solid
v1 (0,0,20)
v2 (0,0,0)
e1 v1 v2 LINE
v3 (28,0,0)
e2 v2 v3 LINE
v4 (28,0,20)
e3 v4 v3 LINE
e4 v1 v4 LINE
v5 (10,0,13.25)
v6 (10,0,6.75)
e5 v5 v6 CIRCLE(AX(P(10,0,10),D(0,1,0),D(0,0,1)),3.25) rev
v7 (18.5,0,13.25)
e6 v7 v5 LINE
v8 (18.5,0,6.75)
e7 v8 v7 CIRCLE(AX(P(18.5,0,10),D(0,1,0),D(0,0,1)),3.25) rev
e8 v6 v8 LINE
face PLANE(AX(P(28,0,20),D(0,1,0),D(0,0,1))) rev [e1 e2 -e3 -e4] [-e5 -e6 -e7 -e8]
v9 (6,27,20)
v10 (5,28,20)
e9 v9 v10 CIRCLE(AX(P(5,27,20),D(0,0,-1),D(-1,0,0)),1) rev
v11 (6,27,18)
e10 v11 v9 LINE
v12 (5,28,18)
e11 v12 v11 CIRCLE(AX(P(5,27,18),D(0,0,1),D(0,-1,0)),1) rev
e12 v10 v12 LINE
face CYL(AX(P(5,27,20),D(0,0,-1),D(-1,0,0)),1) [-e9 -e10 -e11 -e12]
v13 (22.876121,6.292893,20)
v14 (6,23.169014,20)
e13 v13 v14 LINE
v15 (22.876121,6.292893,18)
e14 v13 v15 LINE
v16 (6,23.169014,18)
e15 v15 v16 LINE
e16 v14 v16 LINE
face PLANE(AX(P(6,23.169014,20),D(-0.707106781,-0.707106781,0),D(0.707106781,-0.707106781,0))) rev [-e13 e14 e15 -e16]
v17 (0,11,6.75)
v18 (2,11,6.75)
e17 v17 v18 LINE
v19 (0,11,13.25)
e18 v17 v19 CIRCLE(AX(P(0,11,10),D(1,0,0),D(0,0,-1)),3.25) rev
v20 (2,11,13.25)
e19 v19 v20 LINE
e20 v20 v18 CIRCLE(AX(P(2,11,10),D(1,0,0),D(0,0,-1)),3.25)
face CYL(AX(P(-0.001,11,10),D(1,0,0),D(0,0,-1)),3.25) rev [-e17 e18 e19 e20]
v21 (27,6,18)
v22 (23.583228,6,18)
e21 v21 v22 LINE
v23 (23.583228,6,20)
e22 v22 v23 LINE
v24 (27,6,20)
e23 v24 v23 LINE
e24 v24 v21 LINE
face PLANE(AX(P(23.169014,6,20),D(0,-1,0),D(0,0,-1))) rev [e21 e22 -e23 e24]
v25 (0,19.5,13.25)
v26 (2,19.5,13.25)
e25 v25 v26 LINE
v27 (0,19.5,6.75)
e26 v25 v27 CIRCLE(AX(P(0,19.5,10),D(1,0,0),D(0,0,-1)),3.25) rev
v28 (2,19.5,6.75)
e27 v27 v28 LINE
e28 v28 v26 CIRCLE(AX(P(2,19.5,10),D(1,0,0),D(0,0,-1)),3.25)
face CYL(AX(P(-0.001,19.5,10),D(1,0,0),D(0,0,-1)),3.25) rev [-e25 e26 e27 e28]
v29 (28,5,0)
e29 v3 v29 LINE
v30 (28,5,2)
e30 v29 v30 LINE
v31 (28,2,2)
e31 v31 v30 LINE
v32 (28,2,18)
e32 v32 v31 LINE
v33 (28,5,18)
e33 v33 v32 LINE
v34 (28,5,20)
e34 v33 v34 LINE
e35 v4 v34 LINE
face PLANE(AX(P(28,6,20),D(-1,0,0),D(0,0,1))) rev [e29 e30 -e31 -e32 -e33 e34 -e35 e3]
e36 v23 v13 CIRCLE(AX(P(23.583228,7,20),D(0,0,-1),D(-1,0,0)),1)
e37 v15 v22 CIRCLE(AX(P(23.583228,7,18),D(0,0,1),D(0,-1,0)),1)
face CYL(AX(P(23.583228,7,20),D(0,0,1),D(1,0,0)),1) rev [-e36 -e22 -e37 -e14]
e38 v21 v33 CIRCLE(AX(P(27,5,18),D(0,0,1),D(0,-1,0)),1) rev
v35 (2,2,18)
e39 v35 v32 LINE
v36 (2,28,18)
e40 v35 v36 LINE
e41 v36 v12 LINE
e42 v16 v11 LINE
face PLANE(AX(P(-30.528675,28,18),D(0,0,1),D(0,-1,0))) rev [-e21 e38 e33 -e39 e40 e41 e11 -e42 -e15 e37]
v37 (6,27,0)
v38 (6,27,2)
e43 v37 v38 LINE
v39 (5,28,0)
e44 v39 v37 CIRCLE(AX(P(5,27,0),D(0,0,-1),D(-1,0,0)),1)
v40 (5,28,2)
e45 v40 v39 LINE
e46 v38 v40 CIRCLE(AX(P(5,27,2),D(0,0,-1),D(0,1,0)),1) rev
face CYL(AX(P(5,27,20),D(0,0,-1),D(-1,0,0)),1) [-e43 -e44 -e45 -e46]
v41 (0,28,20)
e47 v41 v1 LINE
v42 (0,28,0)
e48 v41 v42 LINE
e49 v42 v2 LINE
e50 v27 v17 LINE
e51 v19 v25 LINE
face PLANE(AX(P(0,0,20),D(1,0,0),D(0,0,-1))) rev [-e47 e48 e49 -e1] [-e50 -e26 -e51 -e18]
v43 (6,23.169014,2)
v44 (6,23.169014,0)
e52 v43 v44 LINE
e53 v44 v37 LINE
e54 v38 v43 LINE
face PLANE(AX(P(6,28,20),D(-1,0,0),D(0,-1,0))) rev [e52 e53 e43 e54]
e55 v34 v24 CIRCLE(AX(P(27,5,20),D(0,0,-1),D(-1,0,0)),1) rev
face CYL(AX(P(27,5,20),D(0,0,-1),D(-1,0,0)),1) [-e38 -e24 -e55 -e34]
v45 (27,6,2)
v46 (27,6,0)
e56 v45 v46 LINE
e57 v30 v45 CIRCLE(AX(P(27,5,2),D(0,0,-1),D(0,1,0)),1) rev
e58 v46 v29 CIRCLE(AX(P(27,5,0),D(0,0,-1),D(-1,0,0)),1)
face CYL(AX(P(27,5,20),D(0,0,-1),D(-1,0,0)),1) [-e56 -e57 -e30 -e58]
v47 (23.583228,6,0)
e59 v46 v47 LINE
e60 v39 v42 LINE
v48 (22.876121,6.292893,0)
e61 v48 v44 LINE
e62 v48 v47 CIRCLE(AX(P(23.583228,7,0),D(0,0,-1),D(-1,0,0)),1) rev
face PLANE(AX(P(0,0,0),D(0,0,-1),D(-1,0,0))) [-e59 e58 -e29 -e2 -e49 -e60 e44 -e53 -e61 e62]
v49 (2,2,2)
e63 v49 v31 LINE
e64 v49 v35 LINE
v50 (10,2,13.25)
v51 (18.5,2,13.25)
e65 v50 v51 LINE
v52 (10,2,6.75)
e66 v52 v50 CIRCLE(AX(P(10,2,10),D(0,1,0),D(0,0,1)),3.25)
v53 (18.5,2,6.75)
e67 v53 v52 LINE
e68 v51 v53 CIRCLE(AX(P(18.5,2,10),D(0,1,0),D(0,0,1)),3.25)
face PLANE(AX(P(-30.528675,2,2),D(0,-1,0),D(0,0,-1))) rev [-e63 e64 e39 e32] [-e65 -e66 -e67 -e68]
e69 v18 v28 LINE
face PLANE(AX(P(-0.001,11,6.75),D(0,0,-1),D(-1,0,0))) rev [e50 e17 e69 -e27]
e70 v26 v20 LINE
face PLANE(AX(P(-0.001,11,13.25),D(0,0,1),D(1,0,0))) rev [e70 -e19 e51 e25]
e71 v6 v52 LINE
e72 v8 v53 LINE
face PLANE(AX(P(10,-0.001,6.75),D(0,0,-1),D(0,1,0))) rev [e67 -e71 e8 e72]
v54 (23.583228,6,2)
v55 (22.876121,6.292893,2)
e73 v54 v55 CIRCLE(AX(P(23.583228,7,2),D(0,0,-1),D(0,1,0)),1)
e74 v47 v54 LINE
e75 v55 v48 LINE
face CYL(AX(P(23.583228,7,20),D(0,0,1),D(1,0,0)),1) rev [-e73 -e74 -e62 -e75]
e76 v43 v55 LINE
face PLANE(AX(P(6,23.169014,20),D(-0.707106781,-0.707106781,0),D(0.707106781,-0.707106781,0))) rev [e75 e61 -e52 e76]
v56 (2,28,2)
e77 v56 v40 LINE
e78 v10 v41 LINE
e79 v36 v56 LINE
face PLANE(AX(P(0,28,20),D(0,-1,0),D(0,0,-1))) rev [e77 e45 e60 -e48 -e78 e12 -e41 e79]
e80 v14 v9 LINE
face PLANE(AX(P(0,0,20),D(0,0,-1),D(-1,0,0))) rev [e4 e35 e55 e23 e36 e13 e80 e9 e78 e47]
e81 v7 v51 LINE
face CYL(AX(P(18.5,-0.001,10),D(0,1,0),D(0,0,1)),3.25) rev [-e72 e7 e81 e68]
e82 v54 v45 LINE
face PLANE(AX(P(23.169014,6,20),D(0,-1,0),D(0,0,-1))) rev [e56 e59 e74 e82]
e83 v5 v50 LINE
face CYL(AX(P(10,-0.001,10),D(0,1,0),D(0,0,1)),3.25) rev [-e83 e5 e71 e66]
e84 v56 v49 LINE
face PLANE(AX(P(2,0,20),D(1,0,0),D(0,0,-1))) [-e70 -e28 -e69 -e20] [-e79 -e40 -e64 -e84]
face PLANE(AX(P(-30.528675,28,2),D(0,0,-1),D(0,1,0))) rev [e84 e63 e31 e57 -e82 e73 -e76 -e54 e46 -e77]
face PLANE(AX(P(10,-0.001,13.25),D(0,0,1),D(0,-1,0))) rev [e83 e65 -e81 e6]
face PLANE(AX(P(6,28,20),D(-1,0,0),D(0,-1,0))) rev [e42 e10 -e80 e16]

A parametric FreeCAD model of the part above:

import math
import FreeCAD as App
import Part
import Sketcher

V = App.Vector
Q = App.Units.Quantity


def edges_at(feature, points):
    """Names of the edges that pass closest to the given points."""
    edges = feature.Shape.Edges
    near = lambda p: min(range(len(edges)), key=lambda i: edges[i].distToShape(Part.Vertex(*p))[0])
    return sorted({f"Edge{near(p) + 1}" for p in points})


def add_polygon(sketch, points):
    """Adds a closed chain of lines whose ends are joined by coincident constraints."""
    first, n = sketch.GeometryCount, len(points)
    for a, b in zip(points, points[1:] + points[:1]):
        sketch.addGeometry(Part.LineSegment(App.Vector(*a, 0), App.Vector(*b, 0)), False)
    for i in range(n):
        sketch.addConstraint(Sketcher.Constraint("Coincident", first + i, 2, first + (i + 1) % n, 1))

doc = App.newDocument("Part")
body = doc.addObject("PartDesign::Body", "Body")

# Sketch on XY plane
sketch1 = doc.addObject("Sketcher::SketchObject", "Sketch")
body.addObject(sketch1)
sketch1.AttachmentSupport = (doc.XY_Plane, [""])
sketch1.MapMode = "FlatFace"
add_polygon(sketch1, [(0, 28), (0, 0), (28, 0), (28, 6), (23.169014, 6), (6, 23.169014), (6, 28)])  # lines 0-6
sketch1.addConstraint([
    Sketcher.Constraint("Vertical", 0),
    Sketcher.Constraint("Horizontal", 1),
    Sketcher.Constraint("Vertical", 2),
    Sketcher.Constraint("Horizontal", 3),
    Sketcher.Constraint("Vertical", 5),
    Sketcher.Constraint("Horizontal", 6),
    Sketcher.Constraint("Coincident", 0, 2, -1, 1),
    Sketcher.Constraint("Equal", 1, 0),
    Sketcher.Constraint("Equal", 6, 2),
    Sketcher.Constraint("Equal", 3, 5),
    Sketcher.Constraint("DistanceX", 1, 1, 1, 2, Q("28 mm")),
    Sketcher.Constraint("DistanceX", 6, 2, 6, 1, Q("6 mm")),
    Sketcher.Constraint("DistanceX", 3, 2, 3, 1, Q("4.830986 mm")),
])
pad1 = doc.addObject("PartDesign::Pad", "Pad")
body.addObject(pad1)
pad1.Profile = sketch1
pad1.Length = 20

# Sketch on YZ plane
sketch2 = doc.addObject("Sketcher::SketchObject", "Sketch001")
body.addObject(sketch2)
sketch2.AttachmentSupport = (doc.YZ_Plane, [""])
sketch2.MapMode = "FlatFace"
sketch2.AttachmentOffset = App.Placement(V(0, 0, 28), App.Rotation())
add_polygon(sketch2, [(28, 18), (2, 18), (2, 2), (28, 2)])  # lines 0-3
sketch2.addConstraint([
    Sketcher.Constraint("Horizontal", 0),
    Sketcher.Constraint("Vertical", 1),
    Sketcher.Constraint("Horizontal", 2),
    Sketcher.Constraint("Vertical", 3),
    Sketcher.Constraint("DistanceX", 0, 2, 0, 1, Q("26 mm")),
    Sketcher.Constraint("DistanceY", 1, 2, 1, 1, Q("16 mm")),
    Sketcher.Constraint("DistanceX", -1, 1, 0, 2, Q("2 mm")),
    Sketcher.Constraint("DistanceY", -1, 1, 0, 2, Q("18 mm")),
])
pocket1 = doc.addObject("PartDesign::Pocket", "Pocket")
body.addObject(pocket1)
pocket1.Profile = sketch2
pocket1.Length = 26

# Sketch on YZ plane
sketch3 = doc.addObject("Sketcher::SketchObject", "Sketch002")
body.addObject(sketch3)
sketch3.AttachmentSupport = (doc.YZ_Plane, [""])
sketch3.MapMode = "FlatFace"
sketch3.AttachmentOffset = App.Placement(V(0, 0, 2), App.Rotation())
sketch3.addGeometry([
    Part.LineSegment(V(19.5, 13.25, 0), V(11, 13.25, 0)),
    Part.ArcOfCircle(Part.Circle(V(11, 10, 0), V(0, 0, 1), 3.25), math.radians(90), math.radians(270)),
    Part.LineSegment(V(11, 6.75, 0), V(19.5, 6.75, 0)),
    Part.ArcOfCircle(Part.Circle(V(19.5, 10, 0), V(0, 0, 1), 3.25), math.radians(-90), math.radians(90)),
], False)
sketch3.addConstraint([
    Sketcher.Constraint("Tangent", 0, 2, 1, 1),
    Sketcher.Constraint("Tangent", 1, 2, 2, 1),
    Sketcher.Constraint("Tangent", 2, 2, 3, 1),
    Sketcher.Constraint("Tangent", 3, 2, 0, 1),
    Sketcher.Constraint("Horizontal", 0),
    Sketcher.Constraint("Horizontal", 2),
    Sketcher.Constraint("Radius", 1, Q("3.25 mm")),
    Sketcher.Constraint("DistanceX", 0, 2, 0, 1, Q("8.5 mm")),
    Sketcher.Constraint("DistanceX", -1, 1, 1, 3, Q("11 mm")),
    Sketcher.Constraint("DistanceY", -1, 1, 1, 3, Q("10 mm")),
])
pocket2 = doc.addObject("PartDesign::Pocket", "Pocket001")
body.addObject(pocket2)
pocket2.Profile = sketch3
pocket2.Type = "UpToFirst"

# Sketch on XZ plane
sketch4 = doc.addObject("Sketcher::SketchObject", "Sketch003")
body.addObject(sketch4)
sketch4.AttachmentSupport = (doc.XZ_Plane, [""])
sketch4.MapMode = "FlatFace"
sketch4.AttachmentOffset = App.Placement(V(0, 0, -2), App.Rotation())
sketch4.addGeometry([
    Part.LineSegment(V(18.5, 6.75, 0), V(10, 6.75, 0)),
    Part.ArcOfCircle(Part.Circle(V(10, 10, 0), V(0, 0, 1), 3.25), math.radians(90), math.radians(270)),
    Part.LineSegment(V(10, 13.25, 0), V(18.5, 13.25, 0)),
    Part.ArcOfCircle(Part.Circle(V(18.5, 10, 0), V(0, 0, 1), 3.25), math.radians(-90), math.radians(90)),
], False)
sketch4.addConstraint([
    Sketcher.Constraint("Tangent", 0, 2, 1, 2),
    Sketcher.Constraint("Tangent", 1, 1, 2, 1),
    Sketcher.Constraint("Tangent", 2, 2, 3, 2),
    Sketcher.Constraint("Tangent", 3, 1, 0, 1),
    Sketcher.Constraint("Horizontal", 0),
    Sketcher.Constraint("Horizontal", 2),
    Sketcher.Constraint("Radius", 1, Q("3.25 mm")),
    Sketcher.Constraint("DistanceX", 0, 2, 0, 1, Q("8.5 mm")),
    Sketcher.Constraint("DistanceX", -1, 1, 1, 3, Q("10 mm")),
    Sketcher.Constraint("DistanceY", -1, 1, 1, 3, Q("10 mm")),
])
pocket3 = doc.addObject("PartDesign::Pocket", "Pocket002")
body.addObject(pocket3)
pocket3.Profile = sketch4
pocket3.Type = "UpToFirst"
pocket3.Reversed = True
doc.recompute()

fillet = doc.addObject("PartDesign::Fillet", "Fillet")
body.addObject(fillet)
fillet.Base = (pocket3, edges_at(pocket3, [
    (6, 28, 19),
    (23.169, 6, 19),
    (28, 6, 19),
    (6, 28, 1),
    (23.169, 6, 1),
    (28, 6, 1),
]))
fillet.Radius = 1

doc.recompute()
